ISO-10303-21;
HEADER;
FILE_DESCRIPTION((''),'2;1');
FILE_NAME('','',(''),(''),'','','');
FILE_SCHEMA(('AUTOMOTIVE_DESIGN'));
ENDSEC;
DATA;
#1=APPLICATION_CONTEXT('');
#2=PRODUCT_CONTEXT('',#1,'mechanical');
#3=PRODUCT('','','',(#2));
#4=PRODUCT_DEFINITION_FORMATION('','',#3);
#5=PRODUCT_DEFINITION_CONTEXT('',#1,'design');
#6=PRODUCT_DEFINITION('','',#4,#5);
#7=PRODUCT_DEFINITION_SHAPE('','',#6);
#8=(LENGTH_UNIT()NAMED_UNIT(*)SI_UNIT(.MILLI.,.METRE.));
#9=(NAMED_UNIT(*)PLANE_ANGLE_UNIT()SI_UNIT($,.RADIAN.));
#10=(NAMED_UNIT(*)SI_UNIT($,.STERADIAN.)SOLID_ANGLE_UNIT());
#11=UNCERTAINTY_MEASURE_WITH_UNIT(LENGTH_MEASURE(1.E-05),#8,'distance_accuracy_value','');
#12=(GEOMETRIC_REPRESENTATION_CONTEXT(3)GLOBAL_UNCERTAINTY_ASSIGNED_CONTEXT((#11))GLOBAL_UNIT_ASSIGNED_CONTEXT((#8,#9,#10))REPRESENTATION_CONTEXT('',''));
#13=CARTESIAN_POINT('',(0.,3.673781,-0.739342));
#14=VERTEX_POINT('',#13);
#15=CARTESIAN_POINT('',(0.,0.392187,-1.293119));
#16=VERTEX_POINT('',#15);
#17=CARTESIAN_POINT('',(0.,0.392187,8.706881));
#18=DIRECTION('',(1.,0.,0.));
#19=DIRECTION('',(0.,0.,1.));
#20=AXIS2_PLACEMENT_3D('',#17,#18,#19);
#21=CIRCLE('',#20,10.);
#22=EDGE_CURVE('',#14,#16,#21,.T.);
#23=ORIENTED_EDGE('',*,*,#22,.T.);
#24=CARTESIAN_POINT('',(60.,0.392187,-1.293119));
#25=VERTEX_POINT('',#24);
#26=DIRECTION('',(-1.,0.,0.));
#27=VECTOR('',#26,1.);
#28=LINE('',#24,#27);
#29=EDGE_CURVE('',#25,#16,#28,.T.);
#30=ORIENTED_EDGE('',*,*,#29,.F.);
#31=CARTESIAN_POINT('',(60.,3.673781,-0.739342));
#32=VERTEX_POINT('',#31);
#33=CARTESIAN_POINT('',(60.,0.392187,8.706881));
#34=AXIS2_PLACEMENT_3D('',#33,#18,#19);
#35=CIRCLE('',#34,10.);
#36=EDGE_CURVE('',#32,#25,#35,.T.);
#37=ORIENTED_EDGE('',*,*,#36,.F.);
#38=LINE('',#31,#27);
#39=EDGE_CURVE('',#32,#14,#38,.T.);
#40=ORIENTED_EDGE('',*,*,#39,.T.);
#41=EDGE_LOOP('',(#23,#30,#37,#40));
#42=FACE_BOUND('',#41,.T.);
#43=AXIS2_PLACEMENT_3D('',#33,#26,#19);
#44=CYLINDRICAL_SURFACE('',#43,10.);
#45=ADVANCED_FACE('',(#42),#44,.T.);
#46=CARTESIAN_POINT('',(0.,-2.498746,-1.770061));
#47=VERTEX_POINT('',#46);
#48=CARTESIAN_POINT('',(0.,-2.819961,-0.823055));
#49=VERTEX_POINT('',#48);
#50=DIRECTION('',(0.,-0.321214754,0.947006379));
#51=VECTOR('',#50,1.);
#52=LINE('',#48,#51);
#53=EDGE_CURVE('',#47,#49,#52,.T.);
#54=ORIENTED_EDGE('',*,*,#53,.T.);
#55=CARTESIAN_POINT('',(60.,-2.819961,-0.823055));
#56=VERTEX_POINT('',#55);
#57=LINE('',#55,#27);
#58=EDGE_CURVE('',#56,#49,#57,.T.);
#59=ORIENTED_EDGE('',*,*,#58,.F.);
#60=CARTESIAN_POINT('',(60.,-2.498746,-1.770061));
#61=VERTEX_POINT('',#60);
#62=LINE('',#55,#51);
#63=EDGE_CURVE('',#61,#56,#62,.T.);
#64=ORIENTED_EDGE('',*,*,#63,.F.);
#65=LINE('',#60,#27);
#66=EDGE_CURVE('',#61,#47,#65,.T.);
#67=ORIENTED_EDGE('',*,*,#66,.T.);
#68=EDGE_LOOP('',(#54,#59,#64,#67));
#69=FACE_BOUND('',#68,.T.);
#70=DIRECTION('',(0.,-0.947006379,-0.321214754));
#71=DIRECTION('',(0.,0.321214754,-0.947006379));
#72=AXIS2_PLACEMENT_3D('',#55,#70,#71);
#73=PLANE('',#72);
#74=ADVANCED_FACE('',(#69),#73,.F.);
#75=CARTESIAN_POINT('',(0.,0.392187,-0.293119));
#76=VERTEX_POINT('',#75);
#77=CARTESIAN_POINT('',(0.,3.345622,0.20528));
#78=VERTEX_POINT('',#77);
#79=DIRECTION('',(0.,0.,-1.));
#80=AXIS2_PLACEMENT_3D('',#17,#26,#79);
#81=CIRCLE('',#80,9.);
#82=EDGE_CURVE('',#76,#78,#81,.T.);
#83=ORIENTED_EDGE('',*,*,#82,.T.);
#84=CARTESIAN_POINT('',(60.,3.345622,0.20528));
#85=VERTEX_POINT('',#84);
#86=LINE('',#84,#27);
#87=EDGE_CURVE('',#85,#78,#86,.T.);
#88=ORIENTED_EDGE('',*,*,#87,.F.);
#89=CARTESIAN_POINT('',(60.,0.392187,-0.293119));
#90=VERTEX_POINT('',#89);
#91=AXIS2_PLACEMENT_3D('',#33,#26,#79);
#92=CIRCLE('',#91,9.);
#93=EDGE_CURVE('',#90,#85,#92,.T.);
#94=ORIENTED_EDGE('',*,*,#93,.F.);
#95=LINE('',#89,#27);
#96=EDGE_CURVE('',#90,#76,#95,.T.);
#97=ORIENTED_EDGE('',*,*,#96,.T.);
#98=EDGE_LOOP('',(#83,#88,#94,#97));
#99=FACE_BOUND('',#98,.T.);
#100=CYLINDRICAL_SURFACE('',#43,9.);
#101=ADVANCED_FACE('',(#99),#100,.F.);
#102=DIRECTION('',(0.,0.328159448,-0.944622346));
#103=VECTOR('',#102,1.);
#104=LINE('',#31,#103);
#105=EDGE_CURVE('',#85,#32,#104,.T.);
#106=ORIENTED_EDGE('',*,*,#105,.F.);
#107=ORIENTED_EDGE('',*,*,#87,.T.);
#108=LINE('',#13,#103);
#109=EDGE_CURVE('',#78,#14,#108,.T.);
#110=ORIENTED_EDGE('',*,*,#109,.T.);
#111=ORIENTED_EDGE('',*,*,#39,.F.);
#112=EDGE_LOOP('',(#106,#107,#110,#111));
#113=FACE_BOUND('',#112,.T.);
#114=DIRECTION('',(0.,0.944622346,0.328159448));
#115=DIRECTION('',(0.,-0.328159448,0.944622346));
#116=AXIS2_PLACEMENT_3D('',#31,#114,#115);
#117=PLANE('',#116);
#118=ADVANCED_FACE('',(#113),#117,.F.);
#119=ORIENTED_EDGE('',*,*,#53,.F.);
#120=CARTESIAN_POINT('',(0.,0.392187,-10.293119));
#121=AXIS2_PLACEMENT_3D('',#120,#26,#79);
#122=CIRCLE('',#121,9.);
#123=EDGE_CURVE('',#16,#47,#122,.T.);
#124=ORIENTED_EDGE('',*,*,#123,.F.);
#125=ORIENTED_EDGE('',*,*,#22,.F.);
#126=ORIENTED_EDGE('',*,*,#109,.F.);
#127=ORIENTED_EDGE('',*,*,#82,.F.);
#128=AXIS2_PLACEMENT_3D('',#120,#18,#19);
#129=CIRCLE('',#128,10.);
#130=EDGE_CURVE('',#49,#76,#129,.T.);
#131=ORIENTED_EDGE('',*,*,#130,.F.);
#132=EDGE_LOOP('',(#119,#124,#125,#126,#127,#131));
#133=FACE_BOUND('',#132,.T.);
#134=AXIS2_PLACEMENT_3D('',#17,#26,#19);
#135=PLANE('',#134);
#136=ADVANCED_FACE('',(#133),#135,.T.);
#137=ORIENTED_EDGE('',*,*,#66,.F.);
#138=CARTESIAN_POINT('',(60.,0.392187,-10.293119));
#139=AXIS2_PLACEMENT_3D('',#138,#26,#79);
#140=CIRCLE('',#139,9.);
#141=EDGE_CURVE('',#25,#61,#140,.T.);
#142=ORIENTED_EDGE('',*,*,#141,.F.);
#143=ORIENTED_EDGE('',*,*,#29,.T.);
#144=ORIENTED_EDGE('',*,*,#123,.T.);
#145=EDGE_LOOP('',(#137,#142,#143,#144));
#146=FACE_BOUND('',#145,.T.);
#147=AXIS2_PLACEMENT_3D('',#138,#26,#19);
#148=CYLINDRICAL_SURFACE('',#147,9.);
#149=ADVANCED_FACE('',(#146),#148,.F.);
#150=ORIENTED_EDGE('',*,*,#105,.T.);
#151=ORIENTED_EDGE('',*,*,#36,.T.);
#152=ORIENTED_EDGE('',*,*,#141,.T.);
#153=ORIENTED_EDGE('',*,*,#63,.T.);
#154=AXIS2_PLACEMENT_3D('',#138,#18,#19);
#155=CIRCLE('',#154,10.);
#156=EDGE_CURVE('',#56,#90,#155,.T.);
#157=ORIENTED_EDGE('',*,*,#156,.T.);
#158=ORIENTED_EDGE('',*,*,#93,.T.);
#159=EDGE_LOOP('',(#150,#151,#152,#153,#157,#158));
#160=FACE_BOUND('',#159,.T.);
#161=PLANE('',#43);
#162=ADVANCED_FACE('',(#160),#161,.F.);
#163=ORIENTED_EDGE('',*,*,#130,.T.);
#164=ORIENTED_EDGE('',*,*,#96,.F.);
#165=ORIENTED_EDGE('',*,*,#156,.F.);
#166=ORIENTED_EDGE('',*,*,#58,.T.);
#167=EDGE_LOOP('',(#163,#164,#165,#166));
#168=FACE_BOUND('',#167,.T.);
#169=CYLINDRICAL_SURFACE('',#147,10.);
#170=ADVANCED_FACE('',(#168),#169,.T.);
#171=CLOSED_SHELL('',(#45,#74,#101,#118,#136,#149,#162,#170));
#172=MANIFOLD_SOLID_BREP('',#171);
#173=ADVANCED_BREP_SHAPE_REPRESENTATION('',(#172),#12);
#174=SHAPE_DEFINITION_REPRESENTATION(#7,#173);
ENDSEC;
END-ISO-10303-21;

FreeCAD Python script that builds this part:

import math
import FreeCAD as App
import Part
import Sketcher
from FreeCAD import Vector
Q = App.Units.Quantity

doc = App.newDocument("Part")
body = doc.addObject("PartDesign::Body", "Body")

sketch1 = doc.addObject("Sketcher::SketchObject", "Sketch")
body.addObject(sketch1)
sketch1.AttachmentSupport = (doc.YZ_Plane, [""])
sketch1.MapMode = "FlatFace"
sketch1.addGeometry([
    Part.LineSegment(Vector(3.3, 0.2, 0), Vector(3.7, -0.7, 0)),
    Part.ArcOfCircle(Part.Circle(Vector(0.4, 8.7, 0), Vector(0, 0, 1), 10), math.radians(-71), math.radians(270)),
    Part.ArcOfCircle(Part.Circle(Vector(0.4, -10.3, 0), Vector(0, 0, 1), 9), math.radians(109), math.radians(450)),
    Part.LineSegment(Vector(-2.5, -1.8, 0), Vector(-2.8, -0.8, 0)),
    Part.ArcOfCircle(Part.Circle(Vector(0.4, -10.3, 0), Vector(0, 0, 1), 10), math.radians(109), math.radians(450)),
    Part.ArcOfCircle(Part.Circle(Vector(0.4, 8.7, 0), Vector(0, 0, 1), 9), math.radians(-71), math.radians(270)),
], False)
sketch1.addConstraint([
    Sketcher.Constraint("Coincident", 0, 2, 1, 1),
    Sketcher.Constraint("Tangent", 1, 2, 2, 2),
    Sketcher.Constraint("Coincident", 2, 1, 3, 1),
    Sketcher.Constraint("Coincident", 3, 2, 4, 1),
    Sketcher.Constraint("Tangent", 4, 2, 5, 2),
    Sketcher.Constraint("Coincident", 5, 1, 0, 1),
    Sketcher.Constraint("Coincident", 4, 3, 2, 3),
    Sketcher.Constraint("Coincident", 5, 3, 1, 3),
    Sketcher.Constraint("Equal", 1, 4),
    Sketcher.Constraint("Vertical", 1, 3, 2, 3),
    Sketcher.Constraint("Radius", 1, Q("10 mm")),
    Sketcher.Constraint("Radius", 2, Q("9 mm")),
    Sketcher.Constraint("DistanceY", 4, 2, 5, 1, Q("0.498399 mm")),
    Sketcher.Constraint("DistanceY", -1, 1, 1, 3, Q("8.706881 mm")),
    Sketcher.Constraint("DistanceX", -1, 1, 0, 2, Q("3.673781 mm")),
    Sketcher.Constraint("DistanceY", 2, 1, -1, 1, Q("1.770061 mm")),
    Sketcher.Constraint("DistanceX", 3, 2, -1, 1, Q("2.819961 mm")),
    Sketcher.Constraint("DistanceX", -1, 1, 5, 1, Q("3.345622 mm")),
])
pad1 = doc.addObject("PartDesign::Pad", "Pad")
body.addObject(pad1)
pad1.Profile = sketch1
pad1.Length = 60

doc.recompute()
